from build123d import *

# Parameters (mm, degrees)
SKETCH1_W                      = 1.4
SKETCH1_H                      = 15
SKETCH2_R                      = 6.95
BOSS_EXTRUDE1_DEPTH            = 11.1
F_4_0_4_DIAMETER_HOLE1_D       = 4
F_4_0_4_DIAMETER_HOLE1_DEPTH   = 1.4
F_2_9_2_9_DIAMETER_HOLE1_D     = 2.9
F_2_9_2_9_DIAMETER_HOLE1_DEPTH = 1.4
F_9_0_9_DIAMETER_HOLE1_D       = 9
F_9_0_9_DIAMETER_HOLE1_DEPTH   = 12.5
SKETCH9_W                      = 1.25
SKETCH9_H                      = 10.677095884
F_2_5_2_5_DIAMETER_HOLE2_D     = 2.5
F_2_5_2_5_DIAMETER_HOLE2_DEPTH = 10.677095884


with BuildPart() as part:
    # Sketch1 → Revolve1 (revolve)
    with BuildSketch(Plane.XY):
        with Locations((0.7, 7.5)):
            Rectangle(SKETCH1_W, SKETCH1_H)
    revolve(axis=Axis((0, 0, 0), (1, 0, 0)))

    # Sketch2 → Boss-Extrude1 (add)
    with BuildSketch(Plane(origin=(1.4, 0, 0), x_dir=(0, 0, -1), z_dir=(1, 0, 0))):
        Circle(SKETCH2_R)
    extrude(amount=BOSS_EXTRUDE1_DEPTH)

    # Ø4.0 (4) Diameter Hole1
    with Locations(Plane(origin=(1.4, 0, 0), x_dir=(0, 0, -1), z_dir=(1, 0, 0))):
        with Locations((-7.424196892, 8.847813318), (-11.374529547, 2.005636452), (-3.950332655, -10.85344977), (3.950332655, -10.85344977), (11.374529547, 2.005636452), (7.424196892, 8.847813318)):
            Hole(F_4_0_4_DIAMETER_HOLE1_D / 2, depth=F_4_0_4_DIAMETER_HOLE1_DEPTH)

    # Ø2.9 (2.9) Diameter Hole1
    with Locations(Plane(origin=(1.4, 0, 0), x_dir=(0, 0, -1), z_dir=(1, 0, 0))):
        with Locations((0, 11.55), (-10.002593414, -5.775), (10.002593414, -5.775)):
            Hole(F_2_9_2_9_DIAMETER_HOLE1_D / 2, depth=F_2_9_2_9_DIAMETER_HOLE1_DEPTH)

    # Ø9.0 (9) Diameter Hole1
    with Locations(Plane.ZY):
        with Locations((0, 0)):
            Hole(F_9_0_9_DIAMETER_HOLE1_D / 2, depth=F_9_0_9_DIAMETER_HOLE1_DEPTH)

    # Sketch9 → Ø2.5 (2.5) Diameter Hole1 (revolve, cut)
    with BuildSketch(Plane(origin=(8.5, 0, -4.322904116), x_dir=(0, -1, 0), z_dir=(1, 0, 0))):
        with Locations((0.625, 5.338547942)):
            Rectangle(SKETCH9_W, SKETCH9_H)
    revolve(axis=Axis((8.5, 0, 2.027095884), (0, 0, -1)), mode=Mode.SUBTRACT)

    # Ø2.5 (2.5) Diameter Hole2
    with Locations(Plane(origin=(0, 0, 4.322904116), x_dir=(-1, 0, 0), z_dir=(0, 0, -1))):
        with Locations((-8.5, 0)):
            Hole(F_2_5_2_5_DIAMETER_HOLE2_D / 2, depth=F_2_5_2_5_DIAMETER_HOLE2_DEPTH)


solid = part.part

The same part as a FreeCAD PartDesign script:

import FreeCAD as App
import Part
import Sketcher

V = App.Vector


def add_polygon(sketch, points):
    """Adds a closed chain of lines whose ends are joined by coincident constraints."""
    first, n = sketch.GeometryCount, len(points)
    for a, b in zip(points, points[1:] + points[:1]):
        sketch.addGeometry(Part.LineSegment(App.Vector(*a, 0), App.Vector(*b, 0)), False)
    for i in range(n):
        sketch.addConstraint(Sketcher.Constraint("Coincident", first + i, 2, first + (i + 1) % n, 1))

doc = App.newDocument("Part")
body = doc.addObject("PartDesign::Body", "Body")

# Sketch on XY plane
sketch1 = body.newObject("Sketcher::SketchObject", "Sketch")
sketch1.AttachmentSupport = (doc.getObject("XY_Plane"), [""])
sketch1.MapMode = "FlatFace"
add_polygon(sketch1, [(0, 15), (0, 0), (1.4, 0), (1.4, 15)])  # lines 0-3
sketch1.addConstraint([
    Sketcher.Constraint("Vertical", 0),
    Sketcher.Constraint("Horizontal", 1),
    Sketcher.Constraint("Vertical", 2),
    Sketcher.Constraint("Horizontal", 3),
    Sketcher.Constraint("Coincident", 0, 2, -1, 1),
    Sketcher.Constraint("DistanceY", 0, 2, 0, 1, 15.0),
    Sketcher.Constraint("DistanceX", 1, 1, 1, 2, 1.4),
])
revolution = body.newObject("PartDesign::Revolution", "Revolution")
revolution.Profile = sketch1
revolution.ReferenceAxis = (sketch1, ["H_Axis"])
revolution.Angle = 360

# Sketch on YZ plane
sketch2 = body.newObject("Sketcher::SketchObject", "Sketch001")
sketch2.AttachmentSupport = (doc.getObject("YZ_Plane"), [""])
sketch2.MapMode = "FlatFace"
sketch2.AttachmentOffset = App.Placement(V(0, 0, 1.4), App.Rotation())
sketch2.addGeometry(Part.Circle(V(0, 0, 0), V(0, 0, 1), 7), False)
sketch2.addConstraint([
    Sketcher.Constraint("Coincident", 0, 3, -1, 1),
    Sketcher.Constraint("Diameter", 0, 13.9),
])
pad1 = body.newObject("PartDesign::Pad", "Pad")
pad1.Profile = sketch2
pad1.Length = 11.1

# Sketch on YZ plane
sketch3 = body.newObject("Sketcher::SketchObject", "Sketch002")
sketch3.AttachmentSupport = (doc.getObject("YZ_Plane"), [""])
sketch3.MapMode = "FlatFace"
sketch3.AttachmentOffset = App.Placement(V(0, 0, 1.4), App.Rotation())
sketch3.addGeometry([
    Part.Circle(V(8.8, 7.4, 0), V(0, 0, 1), 2),  # 0
    Part.Circle(V(2, 11.4, 0), V(0, 0, 1), 2),  # 1
    Part.Circle(V(-10.9, 4, 0), V(0, 0, 1), 2),  # 2
    Part.Circle(V(-10.9, -4, 0), V(0, 0, 1), 2),  # 3
    Part.Circle(V(2, -11.4, 0), V(0, 0, 1), 2),  # 4
    Part.Circle(V(8.8, -7.4, 0), V(0, 0, 1), 2),  # 5
], False)
sketch3.addConstraint([
    Sketcher.Constraint("Equal", 0, 1),
    Sketcher.Constraint("Equal", 1, 2),
    Sketcher.Constraint("Equal", 2, 3),
    Sketcher.Constraint("Equal", 3, 4),
    Sketcher.Constraint("Equal", 4, 5),
    Sketcher.Constraint("Symmetric", 2, 3, 3, 3, -1),
    Sketcher.Constraint("Symmetric", 1, 3, 4, 3, -1),
    Sketcher.Constraint("Symmetric", 0, 3, 5, 3, -1),
    Sketcher.Constraint("Diameter", 0, 4.0),
    Sketcher.Constraint("DistanceY", -1, 1, 1, 3, 11.37453),
    Sketcher.Constraint("DistanceX", 2, 3, -1, 1, 10.85345),
    Sketcher.Constraint("DistanceY", 3, 3, 0, 3, 11.37453),
    Sketcher.Constraint("DistanceX", -1, 1, 0, 3, 8.847813),
    Sketcher.Constraint("DistanceY", -1, 1, 0, 3, 7.424197),
    Sketcher.Constraint("DistanceX", -1, 1, 1, 3, 2.005636),
])
doc.recompute()
hole = body.newObject("PartDesign::Hole", "Hole")
hole.Profile = sketch3
hole.ThreadType = "None"
hole.Diameter = 4
hole.DepthType = "Dimension"
hole.Depth = 1.4
hole.DrillPoint = "Flat"

# Sketch on YZ plane
sketch4 = body.newObject("Sketcher::SketchObject", "Sketch003")
sketch4.AttachmentSupport = (doc.getObject("YZ_Plane"), [""])
sketch4.MapMode = "FlatFace"
sketch4.AttachmentOffset = App.Placement(V(0, 0, 1.4), App.Rotation())
sketch4.addGeometry([
    Part.Circle(V(11.6, 0, 0), V(0, 0, 1), 1.4),
    Part.Circle(V(-5.8, 10, 0), V(0, 0, 1), 1.4),
    Part.Circle(V(-5.8, -10, 0), V(0, 0, 1), 1.4),
], False)
sketch4.addConstraint([
    Sketcher.Constraint("Equal", 0, 1),
    Sketcher.Constraint("Equal", 1, 2),
    Sketcher.Constraint("Symmetric", 1, 3, 2, 3, -1),
    Sketcher.Constraint("PointOnObject", 0, 3, -1),
    Sketcher.Constraint("Diameter", 0, 2.9),
    Sketcher.Constraint("DistanceX", -1, 1, 0, 3, 11.55),
    Sketcher.Constraint("DistanceX", 1, 3, -1, 1, 5.775),
    Sketcher.Constraint("DistanceY", -1, 1, 1, 3, 10.002593),
])
doc.recompute()
hole2 = body.newObject("PartDesign::Hole", "Hole001")
hole2.Profile = sketch4
hole2.ThreadType = "None"
hole2.Diameter = 2.9
hole2.DepthType = "Dimension"
hole2.Depth = 1.4
hole2.DrillPoint = "Flat"

# Sketch on YZ plane
sketch5 = body.newObject("Sketcher::SketchObject", "Sketch004")
sketch5.AttachmentSupport = (doc.getObject("YZ_Plane"), [""])
sketch5.MapMode = "FlatFace"
sketch5.addGeometry(Part.Circle(V(0, 0, 0), V(0, 0, 1), 4.5), False)
sketch5.addConstraint([
    Sketcher.Constraint("Coincident", 0, 3, -1, 1),
    Sketcher.Constraint("Diameter", 0, 9.0),
])
doc.recompute()
hole3 = body.newObject("PartDesign::Hole", "Hole002")
hole3.Profile = sketch5
hole3.ThreadType = "None"
hole3.Diameter = 9
hole3.DepthType = "Dimension"
hole3.Depth = 12.5
hole3.DrillPoint = "Flat"
hole3.Reversed = True

# Sketch on YZ plane
sketch6 = body.newObject("Sketcher::SketchObject", "Sketch005")
sketch6.AttachmentSupport = (doc.getObject("YZ_Plane"), [""])
sketch6.MapMode = "FlatFace"
sketch6.AttachmentOffset = App.Placement(V(0, 0, 8.5), App.Rotation())
add_polygon(sketch6, [(0, -15), (0, -4.3), (-1.2, -4.3), (-1.2, -15)])  # lines 0-3
sketch6.addConstraint([
    Sketcher.Constraint("Vertical", 0),
    Sketcher.Constraint("Horizontal", 1),
    Sketcher.Constraint("Vertical", 2),
    Sketcher.Constraint("Horizontal", 3),
    Sketcher.Constraint("PointOnObject", 0, 2, -2),
    Sketcher.Constraint("DistanceY", 2, 2, -1, 1, 15.0),
    Sketcher.Constraint("DistanceX", 1, 2, 1, 1, 1.25),
    Sketcher.Constraint("DistanceY", 0, 1, 0, 2, 10.677096),
])
groove = body.newObject("PartDesign::Groove", "Groove")
groove.Profile = sketch6
groove.ReferenceAxis = (sketch6, ["V_Axis"])
groove.Angle = 360

# Sketch on XY plane
sketch7 = body.newObject("Sketcher::SketchObject", "Sketch006")
sketch7.AttachmentSupport = (doc.getObject("XY_Plane"), [""])
sketch7.MapMode = "FlatFace"
sketch7.AttachmentOffset = App.Placement(V(0, 0, 4.322904), App.Rotation())
sketch7.addGeometry(Part.Circle(V(8.5, 0, 0), V(0, 0, 1), 1.2), False)
sketch7.addConstraint([
    Sketcher.Constraint("PointOnObject", 0, 3, -1),
    Sketcher.Constraint("Diameter", 0, 2.5),
    Sketcher.Constraint("DistanceX", -1, 1, 0, 3, 8.5),
])
doc.recompute()
hole4 = body.newObject("PartDesign::Hole", "Hole003")
hole4.Profile = sketch7
hole4.ThreadType = "None"
hole4.Diameter = 2.5
hole4.DepthType = "Dimension"
hole4.Depth = 10.677096
hole4.DrillPoint = "Flat"
hole4.Reversed = True

doc.recompute()
